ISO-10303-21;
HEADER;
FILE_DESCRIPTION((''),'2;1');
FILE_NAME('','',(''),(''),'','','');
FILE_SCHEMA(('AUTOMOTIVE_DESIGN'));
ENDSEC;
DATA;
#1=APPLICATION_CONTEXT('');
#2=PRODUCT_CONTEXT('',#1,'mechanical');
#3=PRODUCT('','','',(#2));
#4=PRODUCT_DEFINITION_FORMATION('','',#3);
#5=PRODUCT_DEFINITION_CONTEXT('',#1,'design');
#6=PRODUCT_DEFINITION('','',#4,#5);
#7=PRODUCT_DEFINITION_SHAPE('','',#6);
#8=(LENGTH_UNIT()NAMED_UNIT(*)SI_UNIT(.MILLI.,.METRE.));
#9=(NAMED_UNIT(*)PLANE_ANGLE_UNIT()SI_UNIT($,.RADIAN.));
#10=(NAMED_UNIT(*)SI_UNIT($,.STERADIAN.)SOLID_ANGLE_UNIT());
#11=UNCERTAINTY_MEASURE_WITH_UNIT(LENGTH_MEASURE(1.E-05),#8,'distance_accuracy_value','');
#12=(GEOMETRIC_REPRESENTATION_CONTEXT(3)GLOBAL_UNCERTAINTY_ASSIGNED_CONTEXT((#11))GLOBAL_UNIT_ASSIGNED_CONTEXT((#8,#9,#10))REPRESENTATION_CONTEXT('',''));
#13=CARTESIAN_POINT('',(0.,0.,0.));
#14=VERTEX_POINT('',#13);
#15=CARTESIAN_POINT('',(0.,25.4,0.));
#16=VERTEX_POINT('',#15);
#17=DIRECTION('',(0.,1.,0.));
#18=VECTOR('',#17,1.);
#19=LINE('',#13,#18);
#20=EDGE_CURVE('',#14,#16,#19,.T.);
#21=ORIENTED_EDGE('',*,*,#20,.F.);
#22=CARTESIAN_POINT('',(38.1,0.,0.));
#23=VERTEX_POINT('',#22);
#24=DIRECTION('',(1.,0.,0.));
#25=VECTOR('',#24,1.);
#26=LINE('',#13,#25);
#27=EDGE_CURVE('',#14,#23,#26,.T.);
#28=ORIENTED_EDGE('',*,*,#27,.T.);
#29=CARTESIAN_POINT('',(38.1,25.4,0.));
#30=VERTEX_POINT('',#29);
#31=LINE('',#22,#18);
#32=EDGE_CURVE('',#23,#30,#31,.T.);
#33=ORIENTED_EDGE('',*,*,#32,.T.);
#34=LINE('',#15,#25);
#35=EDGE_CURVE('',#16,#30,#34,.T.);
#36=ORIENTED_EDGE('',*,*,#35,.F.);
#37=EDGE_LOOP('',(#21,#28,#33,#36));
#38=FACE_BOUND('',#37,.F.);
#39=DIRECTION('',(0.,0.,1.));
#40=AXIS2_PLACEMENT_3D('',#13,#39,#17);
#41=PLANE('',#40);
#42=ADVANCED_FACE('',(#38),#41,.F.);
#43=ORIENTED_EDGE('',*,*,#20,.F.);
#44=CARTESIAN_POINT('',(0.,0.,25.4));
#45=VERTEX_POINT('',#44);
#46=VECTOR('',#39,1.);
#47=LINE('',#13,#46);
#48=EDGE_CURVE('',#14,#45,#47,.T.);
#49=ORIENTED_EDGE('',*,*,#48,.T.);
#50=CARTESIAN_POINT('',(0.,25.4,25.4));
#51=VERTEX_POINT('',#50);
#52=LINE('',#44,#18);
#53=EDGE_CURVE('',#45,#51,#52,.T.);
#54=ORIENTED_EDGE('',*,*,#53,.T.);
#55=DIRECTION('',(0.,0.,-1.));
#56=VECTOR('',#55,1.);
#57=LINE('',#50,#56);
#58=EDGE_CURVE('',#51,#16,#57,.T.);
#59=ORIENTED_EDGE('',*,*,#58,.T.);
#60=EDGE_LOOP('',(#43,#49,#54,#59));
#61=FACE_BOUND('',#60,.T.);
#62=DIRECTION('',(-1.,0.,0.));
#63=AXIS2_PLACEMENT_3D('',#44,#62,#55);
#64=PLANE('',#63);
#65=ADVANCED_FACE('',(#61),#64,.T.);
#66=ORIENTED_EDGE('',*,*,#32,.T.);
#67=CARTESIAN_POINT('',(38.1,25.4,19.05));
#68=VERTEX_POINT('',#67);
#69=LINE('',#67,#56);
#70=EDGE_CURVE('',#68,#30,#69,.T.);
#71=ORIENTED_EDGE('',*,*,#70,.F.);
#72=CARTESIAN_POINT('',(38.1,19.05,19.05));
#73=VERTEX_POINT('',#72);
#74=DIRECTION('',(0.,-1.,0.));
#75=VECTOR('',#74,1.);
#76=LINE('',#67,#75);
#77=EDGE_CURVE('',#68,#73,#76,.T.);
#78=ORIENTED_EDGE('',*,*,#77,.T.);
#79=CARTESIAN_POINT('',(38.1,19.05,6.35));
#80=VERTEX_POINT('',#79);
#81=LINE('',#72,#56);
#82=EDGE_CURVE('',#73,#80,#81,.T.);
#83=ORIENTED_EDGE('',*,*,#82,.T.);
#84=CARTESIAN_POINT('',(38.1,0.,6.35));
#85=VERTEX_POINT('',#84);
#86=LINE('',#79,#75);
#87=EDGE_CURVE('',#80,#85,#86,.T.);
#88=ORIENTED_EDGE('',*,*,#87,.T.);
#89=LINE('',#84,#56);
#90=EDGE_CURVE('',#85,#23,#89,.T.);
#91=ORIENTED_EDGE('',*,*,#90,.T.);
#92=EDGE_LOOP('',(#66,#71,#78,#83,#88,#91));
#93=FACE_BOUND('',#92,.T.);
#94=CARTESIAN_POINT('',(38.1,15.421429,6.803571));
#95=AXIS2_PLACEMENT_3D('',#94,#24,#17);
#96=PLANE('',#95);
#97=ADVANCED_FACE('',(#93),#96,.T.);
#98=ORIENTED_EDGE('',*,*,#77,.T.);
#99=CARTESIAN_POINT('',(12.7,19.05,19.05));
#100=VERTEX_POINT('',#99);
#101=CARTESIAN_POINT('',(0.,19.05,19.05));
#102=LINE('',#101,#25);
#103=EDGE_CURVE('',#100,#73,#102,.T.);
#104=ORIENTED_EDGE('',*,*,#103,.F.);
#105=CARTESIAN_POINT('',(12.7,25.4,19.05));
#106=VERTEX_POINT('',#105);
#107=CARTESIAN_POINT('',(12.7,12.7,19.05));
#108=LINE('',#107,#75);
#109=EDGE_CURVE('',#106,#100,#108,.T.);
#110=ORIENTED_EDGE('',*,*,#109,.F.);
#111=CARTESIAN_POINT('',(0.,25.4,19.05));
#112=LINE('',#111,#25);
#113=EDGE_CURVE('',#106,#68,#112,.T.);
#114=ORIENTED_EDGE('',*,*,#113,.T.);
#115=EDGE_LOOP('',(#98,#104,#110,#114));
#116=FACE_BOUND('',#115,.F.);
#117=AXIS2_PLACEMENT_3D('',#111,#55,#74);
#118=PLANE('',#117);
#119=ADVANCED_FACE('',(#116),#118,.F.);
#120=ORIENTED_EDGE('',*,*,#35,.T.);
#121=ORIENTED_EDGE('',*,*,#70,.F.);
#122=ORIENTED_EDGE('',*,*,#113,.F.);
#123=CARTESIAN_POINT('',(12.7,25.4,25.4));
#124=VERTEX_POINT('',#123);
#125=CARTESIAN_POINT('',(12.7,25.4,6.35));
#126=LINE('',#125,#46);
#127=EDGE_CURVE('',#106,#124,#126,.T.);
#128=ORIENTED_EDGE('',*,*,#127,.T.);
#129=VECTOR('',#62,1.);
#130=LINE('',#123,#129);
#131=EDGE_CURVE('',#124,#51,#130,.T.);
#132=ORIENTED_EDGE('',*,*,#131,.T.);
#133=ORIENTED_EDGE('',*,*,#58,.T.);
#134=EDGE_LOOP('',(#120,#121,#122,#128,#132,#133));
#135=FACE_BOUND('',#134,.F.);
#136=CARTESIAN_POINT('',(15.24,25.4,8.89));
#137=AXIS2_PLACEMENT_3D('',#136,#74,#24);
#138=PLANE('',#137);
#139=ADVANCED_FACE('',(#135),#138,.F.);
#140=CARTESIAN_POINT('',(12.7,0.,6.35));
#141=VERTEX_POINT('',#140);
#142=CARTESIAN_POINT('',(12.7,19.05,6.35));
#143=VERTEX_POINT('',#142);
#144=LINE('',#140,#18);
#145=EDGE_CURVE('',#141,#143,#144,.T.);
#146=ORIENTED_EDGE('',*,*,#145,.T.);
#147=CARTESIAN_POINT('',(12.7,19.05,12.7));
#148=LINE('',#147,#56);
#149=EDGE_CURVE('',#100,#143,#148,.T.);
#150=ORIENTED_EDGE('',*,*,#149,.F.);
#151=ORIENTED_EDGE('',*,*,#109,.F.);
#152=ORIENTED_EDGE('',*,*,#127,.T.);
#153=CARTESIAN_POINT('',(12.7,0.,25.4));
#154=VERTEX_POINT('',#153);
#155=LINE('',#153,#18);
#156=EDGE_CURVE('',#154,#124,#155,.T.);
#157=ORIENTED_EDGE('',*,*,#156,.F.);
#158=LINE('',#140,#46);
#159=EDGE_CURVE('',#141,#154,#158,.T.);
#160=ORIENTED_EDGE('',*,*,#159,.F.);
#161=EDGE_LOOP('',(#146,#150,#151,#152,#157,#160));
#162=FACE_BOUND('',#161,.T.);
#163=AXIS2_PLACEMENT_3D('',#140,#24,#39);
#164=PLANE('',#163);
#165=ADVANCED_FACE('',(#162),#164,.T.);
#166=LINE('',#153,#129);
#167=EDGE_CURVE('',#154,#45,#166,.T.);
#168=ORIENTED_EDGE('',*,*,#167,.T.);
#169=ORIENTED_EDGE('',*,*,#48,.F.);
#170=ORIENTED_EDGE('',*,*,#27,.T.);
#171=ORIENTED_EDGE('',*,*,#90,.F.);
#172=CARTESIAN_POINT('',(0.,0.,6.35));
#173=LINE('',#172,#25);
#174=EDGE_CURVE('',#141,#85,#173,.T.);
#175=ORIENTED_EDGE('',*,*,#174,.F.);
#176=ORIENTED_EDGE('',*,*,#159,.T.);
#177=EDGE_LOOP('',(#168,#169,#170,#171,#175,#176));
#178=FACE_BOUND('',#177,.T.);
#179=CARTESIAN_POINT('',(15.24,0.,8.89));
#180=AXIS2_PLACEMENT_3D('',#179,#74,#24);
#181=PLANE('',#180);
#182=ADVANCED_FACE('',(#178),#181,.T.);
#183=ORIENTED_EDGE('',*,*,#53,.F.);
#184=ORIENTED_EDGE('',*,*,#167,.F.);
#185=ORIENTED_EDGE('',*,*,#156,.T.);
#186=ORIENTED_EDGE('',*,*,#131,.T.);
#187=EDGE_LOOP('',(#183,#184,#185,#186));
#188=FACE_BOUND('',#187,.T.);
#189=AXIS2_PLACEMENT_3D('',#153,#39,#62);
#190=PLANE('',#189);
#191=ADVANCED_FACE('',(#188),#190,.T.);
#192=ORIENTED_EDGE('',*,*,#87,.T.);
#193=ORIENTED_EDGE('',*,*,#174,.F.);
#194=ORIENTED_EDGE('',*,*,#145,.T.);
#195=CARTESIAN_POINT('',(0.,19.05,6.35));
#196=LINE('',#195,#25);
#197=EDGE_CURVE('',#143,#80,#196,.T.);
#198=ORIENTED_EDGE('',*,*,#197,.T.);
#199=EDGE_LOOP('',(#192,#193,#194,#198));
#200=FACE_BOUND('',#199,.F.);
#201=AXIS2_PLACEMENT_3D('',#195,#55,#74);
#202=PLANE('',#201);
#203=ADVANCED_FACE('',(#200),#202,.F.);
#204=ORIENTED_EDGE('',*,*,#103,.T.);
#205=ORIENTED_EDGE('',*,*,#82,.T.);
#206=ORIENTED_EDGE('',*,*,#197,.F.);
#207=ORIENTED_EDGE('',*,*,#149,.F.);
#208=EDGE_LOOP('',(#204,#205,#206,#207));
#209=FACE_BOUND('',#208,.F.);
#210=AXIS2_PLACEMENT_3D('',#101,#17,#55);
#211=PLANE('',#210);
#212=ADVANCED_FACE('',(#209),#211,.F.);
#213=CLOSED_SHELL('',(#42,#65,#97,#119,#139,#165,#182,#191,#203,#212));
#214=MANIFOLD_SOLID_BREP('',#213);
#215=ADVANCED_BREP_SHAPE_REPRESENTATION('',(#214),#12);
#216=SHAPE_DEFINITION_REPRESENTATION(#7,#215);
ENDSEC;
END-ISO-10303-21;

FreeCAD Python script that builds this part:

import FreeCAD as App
import Part
import Sketcher

V = App.Vector
Q = App.Units.Quantity

doc = App.newDocument("Part")
body = doc.addObject("PartDesign::Body", "Body")

# Sketch on YZ plane
sketch1 = body.newObject("Sketcher::SketchObject", "Sketch")
sketch1.AttachmentSupport = (doc.getObject("YZ_Plane"), [""])
sketch1.MapMode = "FlatFace"
sketch1.addGeometry(Part.LineSegment(V(0, 6.35, 0), V(0, 0, 0)), False)
sketch1.addGeometry(Part.LineSegment(V(0, 0, 0), V(25.4, 0, 0)), False)
sketch1.addGeometry(Part.LineSegment(V(25.4, 0, 0), V(25.4, 19.05, 0)), False)
sketch1.addGeometry(Part.LineSegment(V(25.4, 19.05, 0), V(19.05, 19.05, 0)), False)
sketch1.addGeometry(Part.LineSegment(V(19.05, 19.05, 0), V(19.05, 6.35, 0)), False)
sketch1.addGeometry(Part.LineSegment(V(19.05, 6.35, 0), V(0, 6.35, 0)), False)
sketch1.addConstraint(Sketcher.Constraint("Coincident", 0, 2, 1, 1))
sketch1.addConstraint(Sketcher.Constraint("Coincident", 1, 2, 2, 1))
sketch1.addConstraint(Sketcher.Constraint("Coincident", 2, 2, 3, 1))
sketch1.addConstraint(Sketcher.Constraint("Coincident", 3, 2, 4, 1))
sketch1.addConstraint(Sketcher.Constraint("Coincident", 4, 2, 5, 1))
sketch1.addConstraint(Sketcher.Constraint("Coincident", 5, 2, 0, 1))
sketch1.addConstraint(Sketcher.Constraint("Vertical", 0))
sketch1.addConstraint(Sketcher.Constraint("Horizontal", 1))
sketch1.addConstraint(Sketcher.Constraint("Vertical", 2))
sketch1.addConstraint(Sketcher.Constraint("Horizontal", 3))
sketch1.addConstraint(Sketcher.Constraint("Vertical", 4))
sketch1.addConstraint(Sketcher.Constraint("Horizontal", 5))
sketch1.addConstraint(Sketcher.Constraint("Coincident", 0, 2, -1, 1))
sketch1.addConstraint(Sketcher.Constraint("Equal", 3, 0))
sketch1.addConstraint(Sketcher.Constraint("Equal", 5, 2))
sketch1.addConstraint(Sketcher.Constraint("DistanceX", 1, 1, 1, 2, Q("1 in")))
sketch1.addConstraint(Sketcher.Constraint("DistanceY", 4, 2, 4, 1, Q("0.5 in")))
pad1 = body.newObject("PartDesign::Pad", "Pad")
pad1.Profile = sketch1
pad1.Length = Q("1.5 in")

# Sketch on XZ plane
sketch2 = body.newObject("Sketcher::SketchObject", "Sketch001")
sketch2.AttachmentSupport = (doc.getObject("XZ_Plane"), [""])
sketch2.MapMode = "FlatFace"
sketch2.addGeometry(Part.LineSegment(V(0, 25.4, 0), V(0, 0, 0)), False)
sketch2.addGeometry(Part.LineSegment(V(0, 0, 0), V(38.1, 0, 0)), False)
sketch2.addGeometry(Part.LineSegment(V(38.1, 0, 0), V(38.1, 6.35, 0)), False)
sketch2.addGeometry(Part.LineSegment(V(38.1, 6.35, 0), V(12.7, 6.35, 0)), False)
sketch2.addGeometry(Part.LineSegment(V(12.7, 6.35, 0), V(12.7, 25.4, 0)), False)
sketch2.addGeometry(Part.LineSegment(V(12.7, 25.4, 0), V(0, 25.4, 0)), False)
sketch2.addConstraint(Sketcher.Constraint("Coincident", 0, 2, 1, 1))
sketch2.addConstraint(Sketcher.Constraint("Coincident", 1, 2, 2, 1))
sketch2.addConstraint(Sketcher.Constraint("Coincident", 2, 2, 3, 1))
sketch2.addConstraint(Sketcher.Constraint("Coincident", 3, 2, 4, 1))
sketch2.addConstraint(Sketcher.Constraint("Coincident", 4, 2, 5, 1))
sketch2.addConstraint(Sketcher.Constraint("Coincident", 5, 2, 0, 1))
sketch2.addConstraint(Sketcher.Constraint("Vertical", 0))
sketch2.addConstraint(Sketcher.Constraint("Horizontal", 1))
sketch2.addConstraint(Sketcher.Constraint("Vertical", 2))
sketch2.addConstraint(Sketcher.Constraint("Horizontal", 3))
sketch2.addConstraint(Sketcher.Constraint("Vertical", 4))
sketch2.addConstraint(Sketcher.Constraint("Horizontal", 5))
sketch2.addConstraint(Sketcher.Constraint("Coincident", 0, 2, -1, 1))
sketch2.addConstraint(Sketcher.Constraint("Equal", 3, 0))
sketch2.addConstraint(Sketcher.Constraint("DistanceX", 3, 2, 3, 1, Q("1 in")))
sketch2.addConstraint(Sketcher.Constraint("DistanceX", 1, 1, 1, 2, Q("1.5 in")))
sketch2.addConstraint(Sketcher.Constraint("DistanceY", 2, 1, 2, 2, Q("0.25 in")))
pad2 = body.newObject("PartDesign::Pad", "Pad001")
pad2.Profile = sketch2
pad2.Length = Q("1 in")
pad2.Reversed = True

doc.recompute()
